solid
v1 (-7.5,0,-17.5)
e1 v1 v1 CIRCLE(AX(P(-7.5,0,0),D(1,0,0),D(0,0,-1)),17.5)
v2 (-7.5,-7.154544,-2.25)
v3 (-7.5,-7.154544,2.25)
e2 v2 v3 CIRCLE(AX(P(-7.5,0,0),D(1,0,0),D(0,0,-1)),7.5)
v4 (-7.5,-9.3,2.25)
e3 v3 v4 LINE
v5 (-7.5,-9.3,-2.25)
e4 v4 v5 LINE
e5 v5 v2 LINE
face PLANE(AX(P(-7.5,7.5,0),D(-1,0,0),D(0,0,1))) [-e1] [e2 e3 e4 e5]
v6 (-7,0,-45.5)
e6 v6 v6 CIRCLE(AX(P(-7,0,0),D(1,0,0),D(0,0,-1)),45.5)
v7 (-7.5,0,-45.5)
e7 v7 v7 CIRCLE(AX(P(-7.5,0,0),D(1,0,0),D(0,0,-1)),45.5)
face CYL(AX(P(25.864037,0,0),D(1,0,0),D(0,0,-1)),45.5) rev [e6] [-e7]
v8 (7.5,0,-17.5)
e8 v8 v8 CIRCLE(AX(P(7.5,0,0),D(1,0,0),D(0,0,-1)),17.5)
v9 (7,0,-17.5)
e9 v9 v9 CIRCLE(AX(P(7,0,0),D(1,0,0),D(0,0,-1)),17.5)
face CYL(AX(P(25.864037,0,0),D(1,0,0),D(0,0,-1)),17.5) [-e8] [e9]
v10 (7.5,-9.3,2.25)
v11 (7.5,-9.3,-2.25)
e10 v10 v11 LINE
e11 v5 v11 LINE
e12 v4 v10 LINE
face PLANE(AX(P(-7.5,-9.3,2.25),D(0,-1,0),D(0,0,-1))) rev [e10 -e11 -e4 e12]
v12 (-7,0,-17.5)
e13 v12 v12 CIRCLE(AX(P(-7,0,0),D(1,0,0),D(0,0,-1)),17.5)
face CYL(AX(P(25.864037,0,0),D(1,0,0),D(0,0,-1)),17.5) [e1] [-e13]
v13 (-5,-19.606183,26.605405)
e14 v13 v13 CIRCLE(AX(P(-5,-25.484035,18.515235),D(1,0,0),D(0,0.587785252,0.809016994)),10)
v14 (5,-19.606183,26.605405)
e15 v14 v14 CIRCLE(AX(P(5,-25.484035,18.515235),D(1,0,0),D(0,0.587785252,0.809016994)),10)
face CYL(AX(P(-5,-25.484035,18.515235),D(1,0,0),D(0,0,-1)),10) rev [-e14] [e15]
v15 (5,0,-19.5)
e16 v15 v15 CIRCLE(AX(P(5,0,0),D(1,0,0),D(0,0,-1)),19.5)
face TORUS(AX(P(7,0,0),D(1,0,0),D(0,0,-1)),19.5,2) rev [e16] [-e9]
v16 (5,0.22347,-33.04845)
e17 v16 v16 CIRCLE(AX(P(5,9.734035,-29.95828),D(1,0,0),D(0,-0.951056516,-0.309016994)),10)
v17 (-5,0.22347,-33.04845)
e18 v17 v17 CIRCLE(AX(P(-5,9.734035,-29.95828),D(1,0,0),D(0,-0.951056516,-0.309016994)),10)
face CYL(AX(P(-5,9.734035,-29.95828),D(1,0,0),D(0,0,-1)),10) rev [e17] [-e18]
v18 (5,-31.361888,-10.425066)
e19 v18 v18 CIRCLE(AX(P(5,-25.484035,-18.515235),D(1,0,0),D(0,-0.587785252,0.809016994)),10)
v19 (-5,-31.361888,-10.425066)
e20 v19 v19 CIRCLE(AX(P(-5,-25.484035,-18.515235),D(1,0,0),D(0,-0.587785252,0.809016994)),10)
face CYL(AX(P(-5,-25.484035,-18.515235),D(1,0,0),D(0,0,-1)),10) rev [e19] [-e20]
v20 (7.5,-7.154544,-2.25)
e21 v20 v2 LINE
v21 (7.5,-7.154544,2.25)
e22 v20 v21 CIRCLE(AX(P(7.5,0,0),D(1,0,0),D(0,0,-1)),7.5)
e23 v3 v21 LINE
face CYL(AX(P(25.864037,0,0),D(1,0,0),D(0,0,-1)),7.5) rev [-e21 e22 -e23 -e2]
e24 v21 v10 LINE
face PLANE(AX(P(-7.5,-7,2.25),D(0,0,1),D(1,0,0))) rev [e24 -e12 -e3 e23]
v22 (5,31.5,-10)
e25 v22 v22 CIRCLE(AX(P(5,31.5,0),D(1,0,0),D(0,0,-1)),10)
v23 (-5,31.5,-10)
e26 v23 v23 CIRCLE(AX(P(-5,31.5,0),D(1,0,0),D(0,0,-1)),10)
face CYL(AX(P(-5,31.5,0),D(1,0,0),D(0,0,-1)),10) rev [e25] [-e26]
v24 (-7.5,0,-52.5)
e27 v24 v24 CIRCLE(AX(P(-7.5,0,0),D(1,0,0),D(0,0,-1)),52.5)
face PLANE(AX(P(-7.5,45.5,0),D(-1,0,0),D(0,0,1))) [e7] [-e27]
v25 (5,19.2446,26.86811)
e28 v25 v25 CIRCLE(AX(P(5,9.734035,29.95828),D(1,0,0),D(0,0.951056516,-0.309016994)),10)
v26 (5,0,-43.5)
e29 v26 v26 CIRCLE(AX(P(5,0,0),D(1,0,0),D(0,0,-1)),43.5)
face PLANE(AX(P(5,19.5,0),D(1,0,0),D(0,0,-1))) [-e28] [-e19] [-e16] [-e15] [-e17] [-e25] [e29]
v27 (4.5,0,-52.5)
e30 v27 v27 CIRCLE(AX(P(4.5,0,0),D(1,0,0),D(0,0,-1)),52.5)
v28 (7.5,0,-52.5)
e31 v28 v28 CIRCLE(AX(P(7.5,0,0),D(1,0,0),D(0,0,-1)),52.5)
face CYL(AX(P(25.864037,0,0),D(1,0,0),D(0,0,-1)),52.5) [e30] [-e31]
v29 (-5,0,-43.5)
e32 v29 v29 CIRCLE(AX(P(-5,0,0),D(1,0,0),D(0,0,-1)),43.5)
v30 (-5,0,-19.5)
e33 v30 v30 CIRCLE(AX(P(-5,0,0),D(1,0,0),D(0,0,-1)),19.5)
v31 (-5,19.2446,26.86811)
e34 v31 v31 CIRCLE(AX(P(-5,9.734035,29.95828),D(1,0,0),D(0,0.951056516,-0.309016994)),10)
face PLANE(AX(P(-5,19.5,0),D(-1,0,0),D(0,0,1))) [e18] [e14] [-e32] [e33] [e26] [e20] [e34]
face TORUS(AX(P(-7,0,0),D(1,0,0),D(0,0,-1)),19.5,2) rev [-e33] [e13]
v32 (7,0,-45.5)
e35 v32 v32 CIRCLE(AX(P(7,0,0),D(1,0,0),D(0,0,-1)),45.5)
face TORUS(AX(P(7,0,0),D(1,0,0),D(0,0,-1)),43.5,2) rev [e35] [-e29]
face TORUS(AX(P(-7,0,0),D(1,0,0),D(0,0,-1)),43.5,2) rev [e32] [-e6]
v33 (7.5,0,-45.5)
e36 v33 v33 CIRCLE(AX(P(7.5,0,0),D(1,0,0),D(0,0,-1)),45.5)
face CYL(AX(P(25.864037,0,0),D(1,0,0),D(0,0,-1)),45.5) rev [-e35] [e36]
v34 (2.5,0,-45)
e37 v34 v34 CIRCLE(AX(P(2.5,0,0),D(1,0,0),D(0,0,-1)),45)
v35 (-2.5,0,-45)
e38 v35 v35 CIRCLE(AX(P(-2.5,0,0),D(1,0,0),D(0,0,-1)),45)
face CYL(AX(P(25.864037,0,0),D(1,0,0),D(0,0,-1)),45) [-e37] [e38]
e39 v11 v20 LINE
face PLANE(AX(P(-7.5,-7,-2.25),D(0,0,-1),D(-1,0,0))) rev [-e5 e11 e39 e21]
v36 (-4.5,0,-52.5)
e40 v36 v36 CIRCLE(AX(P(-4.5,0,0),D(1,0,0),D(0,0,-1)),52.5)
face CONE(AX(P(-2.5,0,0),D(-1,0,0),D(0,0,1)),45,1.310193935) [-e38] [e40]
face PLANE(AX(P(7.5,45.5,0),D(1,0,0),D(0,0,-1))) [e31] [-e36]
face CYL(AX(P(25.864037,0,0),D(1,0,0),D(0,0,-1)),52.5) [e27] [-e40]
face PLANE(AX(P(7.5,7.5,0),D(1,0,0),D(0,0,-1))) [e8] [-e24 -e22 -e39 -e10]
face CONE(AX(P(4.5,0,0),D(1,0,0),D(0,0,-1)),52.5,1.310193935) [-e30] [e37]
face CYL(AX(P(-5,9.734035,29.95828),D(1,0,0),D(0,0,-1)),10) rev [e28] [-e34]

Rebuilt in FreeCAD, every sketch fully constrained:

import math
import FreeCAD as App
import Part
import Sketcher

V = App.Vector
Q = App.Units.Quantity


def add_polygon(sketch, points):
    """Adds a closed chain of lines whose ends are joined by coincident constraints."""
    first, n = sketch.GeometryCount, len(points)
    for a, b in zip(points, points[1:] + points[:1]):
        sketch.addGeometry(Part.LineSegment(App.Vector(*a, 0), App.Vector(*b, 0)), False)
    for i in range(n):
        sketch.addConstraint(Sketcher.Constraint("Coincident", first + i, 2, first + (i + 1) % n, 1))

doc = App.newDocument("Part")
body = doc.addObject("PartDesign::Body", "Body")

# Sketch on XY plane
sketch1 = doc.addObject("Sketcher::SketchObject", "Sketch")
body.addObject(sketch1)
sketch1.AttachmentSupport = (doc.XY_Plane, [""])
sketch1.MapMode = "FlatFace"
sketch1.addGeometry(Part.LineSegment(V(-7.5, 7.5, 0), V(7.5, 7.5, 0)), False)
sketch1.addGeometry(Part.LineSegment(V(7.5, 7.5, 0), V(7.5, 17.5, 0)), False)
sketch1.addGeometry(Part.LineSegment(V(7.5, 17.5, 0), V(7, 17.5, 0)), False)
sketch1.addGeometry(Part.ArcOfCircle(Part.Circle(V(7, 19.5, 0), V(0, 0, 1), 2), math.radians(-180), math.radians(-90)), False)
sketch1.addGeometry(Part.LineSegment(V(5, 19.5, 0), V(5, 43.5, 0)), False)
sketch1.addGeometry(Part.ArcOfCircle(Part.Circle(V(7, 43.5, 0), V(0, 0, 1), 2), math.radians(90), math.radians(180)), False)
sketch1.addGeometry(Part.LineSegment(V(7, 45.5, 0), V(7.5, 45.5, 0)), False)
sketch1.addGeometry(Part.LineSegment(V(7.5, 45.5, 0), V(7.5, 52.5, 0)), False)
sketch1.addGeometry(Part.LineSegment(V(7.5, 52.5, 0), V(4.5, 52.5, 0)), False)
sketch1.addGeometry(Part.LineSegment(V(4.5, 52.5, 0), V(2.5, 45, 0)), False)
sketch1.addGeometry(Part.LineSegment(V(2.5, 45, 0), V(-2.5, 45, 0)), False)
sketch1.addGeometry(Part.LineSegment(V(-2.5, 45, 0), V(-4.5, 52.5, 0)), False)
sketch1.addGeometry(Part.LineSegment(V(-4.5, 52.5, 0), V(-7.5, 52.5, 0)), False)
sketch1.addGeometry(Part.LineSegment(V(-7.5, 52.5, 0), V(-7.5, 45.5, 0)), False)
sketch1.addGeometry(Part.LineSegment(V(-7.5, 45.5, 0), V(-7, 45.5, 0)), False)
sketch1.addGeometry(Part.ArcOfCircle(Part.Circle(V(-7, 43.5, 0), V(0, 0, 1), 2), math.radians(0), math.radians(90)), False)
sketch1.addGeometry(Part.LineSegment(V(-5, 43.5, 0), V(-5, 19.5, 0)), False)
sketch1.addGeometry(Part.ArcOfCircle(Part.Circle(V(-7, 19.5, 0), V(0, 0, 1), 2), math.radians(-90), math.radians(0)), False)
sketch1.addGeometry(Part.LineSegment(V(-7, 17.5, 0), V(-7.5, 17.5, 0)), False)
sketch1.addGeometry(Part.LineSegment(V(-7.5, 17.5, 0), V(-7.5, 7.5, 0)), False)
sketch1.addConstraint(Sketcher.Constraint("Coincident", 0, 2, 1, 1))
sketch1.addConstraint(Sketcher.Constraint("Coincident", 1, 2, 2, 1))
sketch1.addConstraint(Sketcher.Constraint("Tangent", 2, 2, 3, 2))
sketch1.addConstraint(Sketcher.Constraint("Tangent", 3, 1, 4, 1))
sketch1.addConstraint(Sketcher.Constraint("Tangent", 4, 2, 5, 2))
sketch1.addConstraint(Sketcher.Constraint("Tangent", 5, 1, 6, 1))
sketch1.addConstraint(Sketcher.Constraint("Coincident", 6, 2, 7, 1))
sketch1.addConstraint(Sketcher.Constraint("Coincident", 7, 2, 8, 1))
sketch1.addConstraint(Sketcher.Constraint("Coincident", 8, 2, 9, 1))
sketch1.addConstraint(Sketcher.Constraint("Coincident", 9, 2, 10, 1))
sketch1.addConstraint(Sketcher.Constraint("Coincident", 10, 2, 11, 1))
sketch1.addConstraint(Sketcher.Constraint("Coincident", 11, 2, 12, 1))
sketch1.addConstraint(Sketcher.Constraint("Coincident", 12, 2, 13, 1))
sketch1.addConstraint(Sketcher.Constraint("Coincident", 13, 2, 14, 1))
sketch1.addConstraint(Sketcher.Constraint("Tangent", 14, 2, 15, 2))
sketch1.addConstraint(Sketcher.Constraint("Tangent", 15, 1, 16, 1))
sketch1.addConstraint(Sketcher.Constraint("Tangent", 16, 2, 17, 2))
sketch1.addConstraint(Sketcher.Constraint("Tangent", 17, 1, 18, 1))
sketch1.addConstraint(Sketcher.Constraint("Coincident", 18, 2, 19, 1))
sketch1.addConstraint(Sketcher.Constraint("Coincident", 19, 2, 0, 1))
sketch1.addConstraint(Sketcher.Constraint("Horizontal", 0))
sketch1.addConstraint(Sketcher.Constraint("Vertical", 1))
sketch1.addConstraint(Sketcher.Constraint("Horizontal", 2))
sketch1.addConstraint(Sketcher.Constraint("Vertical", 4))
sketch1.addConstraint(Sketcher.Constraint("Horizontal", 6))
sketch1.addConstraint(Sketcher.Constraint("Vertical", 7))
sketch1.addConstraint(Sketcher.Constraint("Horizontal", 8))
sketch1.addConstraint(Sketcher.Constraint("Horizontal", 10))
sketch1.addConstraint(Sketcher.Constraint("Horizontal", 12))
sketch1.addConstraint(Sketcher.Constraint("Vertical", 13))
sketch1.addConstraint(Sketcher.Constraint("Horizontal", 14))
sketch1.addConstraint(Sketcher.Constraint("Vertical", 16))
sketch1.addConstraint(Sketcher.Constraint("Horizontal", 18))
sketch1.addConstraint(Sketcher.Constraint("Vertical", 19))
sketch1.addConstraint(Sketcher.Constraint("Equal", 3, 5))
sketch1.addConstraint(Sketcher.Constraint("Equal", 5, 15))
sketch1.addConstraint(Sketcher.Constraint("Equal", 15, 17))
sketch1.addConstraint(Sketcher.Constraint("Symmetric", 5, 3, 15, 3, -2))
sketch1.addConstraint(Sketcher.Constraint("Symmetric", 8, 2, 11, 2, -2))
sketch1.addConstraint(Sketcher.Constraint("Symmetric", 1, 2, 18, 2, -2))
sketch1.addConstraint(Sketcher.Constraint("Vertical", 1, 2, 6, 2))
sketch1.addConstraint(Sketcher.Constraint("Vertical", 13, 2, 18, 2))
sketch1.addConstraint(Sketcher.Constraint("Equal", 9, 11))
sketch1.addConstraint(Sketcher.Constraint("Radius", 3, Q("2 mm")))
sketch1.addConstraint(Sketcher.Constraint("DistanceX", 0, 1, 0, 2, Q("15 mm")))
sketch1.addConstraint(Sketcher.Constraint("DistanceX", 8, 2, 8, 1, Q("3 mm")))
sketch1.addConstraint(Sketcher.Constraint("DistanceX", 10, 2, 10, 1, Q("5 mm")))
sketch1.addConstraint(Sketcher.Constraint("DistanceY", 1, 1, 1, 2, Q("10 mm")))
sketch1.addConstraint(Sketcher.Constraint("DistanceY", 4, 1, 4, 2, Q("24 mm")))
sketch1.addConstraint(Sketcher.Constraint("DistanceY", 7, 1, 7, 2, Q("7 mm")))
sketch1.addConstraint(Sketcher.Constraint("DistanceX", 2, 2, 2, 1, Q("0.5 mm")))
sketch1.addConstraint(Sketcher.Constraint("DistanceY", -1, 1, 9, 2, Q("45 mm")))
sketch1.addConstraint(Sketcher.Constraint("DistanceY", -1, 1, 3, 3, Q("19.5 mm")))
revolution = doc.addObject("PartDesign::Revolution", "Revolution")
body.addObject(revolution)
revolution.Profile = sketch1
revolution.ReferenceAxis = (sketch1, ["H_Axis"])
revolution.Angle = 360

# Sketch on YZ plane
sketch2 = doc.addObject("Sketcher::SketchObject", "Sketch001")
body.addObject(sketch2)
sketch2.AttachmentSupport = (doc.YZ_Plane, [""])
sketch2.MapMode = "FlatFace"
sketch2.AttachmentOffset = App.Placement(V(0, 0, 5), App.Rotation())
sketch2.addGeometry(Part.Circle(V(32, 0, 0), V(0, 0, 1), 10), False)
sketch2.addConstraint(Sketcher.Constraint("PointOnObject", 0, 3, -1))
sketch2.addConstraint(Sketcher.Constraint("Diameter", 0, Q("20 mm")))
sketch2.addConstraint(Sketcher.Constraint("DistanceX", -1, 1, 0, 3, Q("31.5 mm")))
pocket1 = doc.addObject("PartDesign::Pocket", "Pocket")
body.addObject(pocket1)
pocket1.Profile = sketch2
pocket1.Length = 10
doc.recompute()

polarpattern = doc.addObject("PartDesign::PolarPattern", "PolarPattern")
body.addObject(polarpattern)
polarpattern.Originals = [pocket1]
polarpattern.Axis = (doc.X_Axis, [""])
polarpattern.Angle = 360
polarpattern.Occurrences = 5
body.Tip = polarpattern

# Sketch on YZ plane
sketch3 = doc.addObject("Sketcher::SketchObject", "Sketch002")
body.addObject(sketch3)
sketch3.AttachmentSupport = (doc.YZ_Plane, [""])
sketch3.MapMode = "FlatFace"
sketch3.AttachmentOffset = App.Placement(V(0, 0, 7.5), App.Rotation())
add_polygon(sketch3, [(-7, 2.2), (-9.3, 2.2), (-9.3, -2.2), (-7, -2.2)])  # lines 0-3
sketch3.addConstraint(Sketcher.Constraint("Horizontal", 0))
sketch3.addConstraint(Sketcher.Constraint("Vertical", 1))
sketch3.addConstraint(Sketcher.Constraint("Horizontal", 2))
sketch3.addConstraint(Sketcher.Constraint("Vertical", 3))
sketch3.addConstraint(Sketcher.Constraint("DistanceX", 0, 2, 0, 1, Q("2.3 mm")))
sketch3.addConstraint(Sketcher.Constraint("DistanceY", 1, 2, 1, 1, Q("4.5 mm")))
sketch3.addConstraint(Sketcher.Constraint("DistanceX", 2, 2, -1, 1, Q("7 mm")))
sketch3.addConstraint(Sketcher.Constraint("DistanceY", -1, 1, 0, 2, Q("2.25 mm")))
pocket2 = doc.addObject("PartDesign::Pocket", "Pocket001")
body.addObject(pocket2)
pocket2.Profile = sketch3
pocket2.Type = "ThroughAll"

doc.recompute()
